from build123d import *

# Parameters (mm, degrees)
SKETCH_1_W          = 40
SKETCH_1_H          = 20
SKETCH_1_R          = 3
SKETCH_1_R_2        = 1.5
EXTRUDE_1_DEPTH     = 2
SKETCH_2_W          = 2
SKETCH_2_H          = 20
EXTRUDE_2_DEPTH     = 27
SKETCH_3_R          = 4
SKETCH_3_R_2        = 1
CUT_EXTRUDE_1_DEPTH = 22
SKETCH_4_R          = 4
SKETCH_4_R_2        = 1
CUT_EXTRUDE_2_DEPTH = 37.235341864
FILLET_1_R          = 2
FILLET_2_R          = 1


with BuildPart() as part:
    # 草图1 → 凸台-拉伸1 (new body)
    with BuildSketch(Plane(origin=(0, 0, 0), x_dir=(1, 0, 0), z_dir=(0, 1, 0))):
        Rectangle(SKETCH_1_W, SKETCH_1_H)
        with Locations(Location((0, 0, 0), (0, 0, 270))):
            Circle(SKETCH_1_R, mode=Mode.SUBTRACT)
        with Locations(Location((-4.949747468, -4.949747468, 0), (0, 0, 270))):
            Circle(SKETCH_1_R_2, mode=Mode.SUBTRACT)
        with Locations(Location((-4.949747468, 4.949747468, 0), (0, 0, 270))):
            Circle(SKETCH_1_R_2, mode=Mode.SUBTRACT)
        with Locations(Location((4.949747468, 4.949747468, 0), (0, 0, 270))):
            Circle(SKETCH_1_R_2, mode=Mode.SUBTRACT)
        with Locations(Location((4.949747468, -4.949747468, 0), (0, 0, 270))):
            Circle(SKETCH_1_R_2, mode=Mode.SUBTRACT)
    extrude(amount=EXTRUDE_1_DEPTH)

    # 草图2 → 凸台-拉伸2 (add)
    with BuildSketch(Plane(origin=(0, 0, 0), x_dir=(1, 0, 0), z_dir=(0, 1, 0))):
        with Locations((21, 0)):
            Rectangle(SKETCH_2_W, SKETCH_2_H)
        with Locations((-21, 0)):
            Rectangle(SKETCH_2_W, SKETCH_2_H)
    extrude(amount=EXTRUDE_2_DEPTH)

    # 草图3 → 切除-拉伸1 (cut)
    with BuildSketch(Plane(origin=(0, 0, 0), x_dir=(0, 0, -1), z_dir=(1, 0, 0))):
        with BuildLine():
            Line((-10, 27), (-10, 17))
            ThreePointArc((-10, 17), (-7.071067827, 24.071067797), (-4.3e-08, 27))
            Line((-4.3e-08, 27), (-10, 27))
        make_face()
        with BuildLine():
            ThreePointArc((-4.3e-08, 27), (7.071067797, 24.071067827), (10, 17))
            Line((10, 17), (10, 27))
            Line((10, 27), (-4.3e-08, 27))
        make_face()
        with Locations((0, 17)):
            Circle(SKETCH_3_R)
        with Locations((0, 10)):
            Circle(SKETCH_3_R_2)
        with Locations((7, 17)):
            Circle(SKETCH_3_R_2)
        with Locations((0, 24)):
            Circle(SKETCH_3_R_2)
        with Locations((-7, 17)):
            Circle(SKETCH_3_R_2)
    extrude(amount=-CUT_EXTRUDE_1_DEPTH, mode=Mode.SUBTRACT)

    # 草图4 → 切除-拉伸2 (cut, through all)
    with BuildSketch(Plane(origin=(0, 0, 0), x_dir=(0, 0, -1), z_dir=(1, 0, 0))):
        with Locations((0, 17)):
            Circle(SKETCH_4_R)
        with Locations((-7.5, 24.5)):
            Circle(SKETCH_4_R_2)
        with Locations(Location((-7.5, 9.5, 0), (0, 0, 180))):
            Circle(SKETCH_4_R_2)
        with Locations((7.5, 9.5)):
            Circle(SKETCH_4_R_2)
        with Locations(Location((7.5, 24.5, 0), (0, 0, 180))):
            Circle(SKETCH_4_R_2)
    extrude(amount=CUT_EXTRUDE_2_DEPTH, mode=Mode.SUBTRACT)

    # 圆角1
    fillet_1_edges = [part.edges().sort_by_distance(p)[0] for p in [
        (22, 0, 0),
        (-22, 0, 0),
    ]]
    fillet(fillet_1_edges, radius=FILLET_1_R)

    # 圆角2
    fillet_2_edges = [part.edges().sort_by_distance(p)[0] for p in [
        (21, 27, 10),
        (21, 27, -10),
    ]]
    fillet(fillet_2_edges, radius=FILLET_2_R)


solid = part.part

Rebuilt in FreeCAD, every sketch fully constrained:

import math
import FreeCAD as App
import Part
import Sketcher

V = App.Vector
Q = App.Units.Quantity


def edges_at(feature, points):
    """Names of the edges that pass closest to the given points."""
    edges = feature.Shape.Edges
    near = lambda p: min(range(len(edges)), key=lambda i: edges[i].distToShape(Part.Vertex(*p))[0])
    return sorted({f"Edge{near(p) + 1}" for p in points})

doc = App.newDocument("Part")
body = doc.addObject("PartDesign::Body", "Body")

sketch1 = body.newObject("Sketcher::SketchObject", "Sketch")
sketch1.AttachmentSupport = (doc.getObject("XZ_Plane"), [""])
sketch1.MapMode = "FlatFace"
sketch1.addGeometry([
    Part.LineSegment(V(-20, -10, 0), V(-20, 10, 0)),
    Part.LineSegment(V(-20, 10, 0), V(20, 10, 0)),
    Part.LineSegment(V(20, 10, 0), V(20, -10, 0)),
    Part.LineSegment(V(20, -10, 0), V(-20, -10, 0)),
    Part.Circle(V(-4.9, 4.9, 0), V(0, 0, 1), 1.5),
    Part.Circle(V(4.9, 4.9, 0), V(0, 0, 1), 1.5),
    Part.Circle(V(-4.9, -4.9, 0), V(0, 0, 1), 1.5),
    Part.Circle(V(0, 0, 0), V(0, 0, 1), 3),
    Part.Circle(V(4.9, -4.9, 0), V(0, 0, 1), 1.5),
], False)
sketch1.addConstraint([
    Sketcher.Constraint("Coincident", 0, 2, 1, 1),
    Sketcher.Constraint("Coincident", 1, 2, 2, 1),
    Sketcher.Constraint("Coincident", 2, 2, 3, 1),
    Sketcher.Constraint("Coincident", 3, 2, 0, 1),
    Sketcher.Constraint("Vertical", 0),
    Sketcher.Constraint("Horizontal", 1),
    Sketcher.Constraint("Vertical", 2),
    Sketcher.Constraint("Horizontal", 3),
    Sketcher.Constraint("Coincident", 7, 3, -1, 1),
    Sketcher.Constraint("Equal", 4, 5),
    Sketcher.Constraint("Equal", 5, 6),
    Sketcher.Constraint("Equal", 6, 8),
    Sketcher.Constraint("Symmetric", 5, 3, 6, 3, -1, 1),
    Sketcher.Constraint("Symmetric", 4, 3, 8, 3, -1, 1),
    Sketcher.Constraint("Symmetric", 0, 2, 2, 2, -1, 1),
    Sketcher.Constraint("Symmetric", 4, 3, 5, 3, -2),
    Sketcher.Constraint("Diameter", 4, Q("3 mm")),
    Sketcher.Constraint("Diameter", 7, Q("6 mm")),
    Sketcher.Constraint("DistanceX", 1, 1, 1, 2, Q("40 mm")),
    Sketcher.Constraint("DistanceY", 0, 1, 0, 2, Q("20 mm")),
    Sketcher.Constraint("DistanceX", 4, 3, -1, 1, Q("4.949747 mm")),
    Sketcher.Constraint("DistanceY", -1, 1, 4, 3, Q("4.949747 mm")),
])
pad1 = body.newObject("PartDesign::Pad", "Pad")
pad1.Profile = sketch1
pad1.Length = 2
pad1.Reversed = True

sketch2 = body.newObject("Sketcher::SketchObject", "Sketch001")
sketch2.AttachmentSupport = (doc.getObject("XZ_Plane"), [""])
sketch2.MapMode = "FlatFace"
sketch2.addGeometry([
    Part.LineSegment(V(20, -10, 0), V(20, 10, 0)),
    Part.LineSegment(V(20, 10, 0), V(22, 10, 0)),
    Part.LineSegment(V(22, 10, 0), V(22, -10, 0)),
    Part.LineSegment(V(22, -10, 0), V(20, -10, 0)),
    Part.LineSegment(V(-22, -10, 0), V(-22, 10, 0)),
    Part.LineSegment(V(-22, 10, 0), V(-20, 10, 0)),
    Part.LineSegment(V(-20, 10, 0), V(-20, -10, 0)),
    Part.LineSegment(V(-20, -10, 0), V(-22, -10, 0)),
], False)
sketch2.addConstraint([
    Sketcher.Constraint("Coincident", 0, 2, 1, 1),
    Sketcher.Constraint("Coincident", 1, 2, 2, 1),
    Sketcher.Constraint("Coincident", 2, 2, 3, 1),
    Sketcher.Constraint("Coincident", 3, 2, 0, 1),
    Sketcher.Constraint("Coincident", 4, 2, 5, 1),
    Sketcher.Constraint("Coincident", 5, 2, 6, 1),
    Sketcher.Constraint("Coincident", 6, 2, 7, 1),
    Sketcher.Constraint("Coincident", 7, 2, 4, 1),
    Sketcher.Constraint("Vertical", 0),
    Sketcher.Constraint("Horizontal", 1),
    Sketcher.Constraint("Vertical", 2),
    Sketcher.Constraint("Horizontal", 3),
    Sketcher.Constraint("Vertical", 4),
    Sketcher.Constraint("Horizontal", 5),
    Sketcher.Constraint("Vertical", 6),
    Sketcher.Constraint("Horizontal", 7),
    Sketcher.Constraint("Symmetric", 2, 2, 4, 2, -1, 1),
    Sketcher.Constraint("Symmetric", 0, 2, 6, 2, -1, 1),
    Sketcher.Constraint("Horizontal", 1, 2, 4, 2),
    Sketcher.Constraint("DistanceX", 1, 1, 1, 2, Q("2 mm")),
    Sketcher.Constraint("DistanceY", 0, 1, 0, 2, Q("20 mm")),
    Sketcher.Constraint("DistanceX", -1, 1, 0, 2, Q("20 mm")),
])
pad2 = body.newObject("PartDesign::Pad", "Pad001")
pad2.Profile = sketch2
pad2.Length = 27
pad2.Reversed = True

sketch3 = body.newObject("Sketcher::SketchObject", "Sketch002")
sketch3.AttachmentSupport = (doc.getObject("YZ_Plane"), [""])
sketch3.MapMode = "FlatFace"
sketch3.addGeometry([
    Part.LineSegment(V(27, 10, 0), V(17, 10, 0)),
    Part.ArcOfCircle(Part.Circle(V(17, 0, 0), V(0, 0, 1), 10), math.radians(0), math.radians(90)),
    Part.LineSegment(V(27, 0, 0), V(27, 10, 0)),
    Part.ArcOfCircle(Part.Circle(V(17, 0, 0), V(0, 0, 1), 10), math.radians(-90), math.radians(0)),
    Part.LineSegment(V(17, -10, 0), V(27, -10, 0)),
    Part.LineSegment(V(27, -10, 0), V(27, 0, 0)),
    Part.Circle(V(17, 0, 0), V(0, 0, 1), 4),
    Part.Circle(V(10, 0, 0), V(0, 0, 1), 1),
    Part.Circle(V(17, -7, 0), V(0, 0, 1), 1),
    Part.Circle(V(24, 0, 0), V(0, 0, 1), 1),
    Part.Circle(V(17, 7, 0), V(0, 0, 1), 1),
], False)
sketch3.addConstraint([
    Sketcher.Constraint("Tangent", 0, 2, 1, 2),
    Sketcher.Constraint("Tangent", 1, 1, 2, 1),
    Sketcher.Constraint("Coincident", 2, 2, 0, 1),
    Sketcher.Constraint("Tangent", 3, 1, 4, 1),
    Sketcher.Constraint("Coincident", 4, 2, 5, 1),
    Sketcher.Constraint("Tangent", 5, 2, 3, 2),
    Sketcher.Constraint("Horizontal", 0),
    Sketcher.Constraint("Vertical", 2),
    Sketcher.Constraint("Horizontal", 4),
    Sketcher.Constraint("Vertical", 5),
    Sketcher.Constraint("Coincident", 3, 3, 1, 3),
    Sketcher.Constraint("Coincident", 6, 3, 1, 3),
    Sketcher.Constraint("Equal", 1, 3),
    Sketcher.Constraint("Equal", 7, 8),
    Sketcher.Constraint("Equal", 8, 9),
    Sketcher.Constraint("Equal", 9, 10),
    Sketcher.Constraint("Symmetric", 8, 3, 10, 3, -1),
    Sketcher.Constraint("PointOnObject", 1, 3, -1),
    Sketcher.Constraint("PointOnObject", 7, 3, -1),
    Sketcher.Constraint("PointOnObject", 9, 3, -1),
    Sketcher.Constraint("Vertical", 6, 3, 8, 3),
    Sketcher.Constraint("Diameter", 6, Q("8 mm")),
    Sketcher.Constraint("Diameter", 7, Q("2 mm")),
    Sketcher.Constraint("Radius", 1, Q("10 mm")),
    Sketcher.Constraint("DistanceX", -1, 1, 1, 3, Q("17 mm")),
    Sketcher.Constraint("DistanceX", -1, 1, 7, 3, Q("10 mm")),
    Sketcher.Constraint("DistanceY", 8, 3, -1, 1, Q("7 mm")),
    Sketcher.Constraint("DistanceX", -1, 1, 9, 3, Q("24 mm")),
])
pocket1 = body.newObject("PartDesign::Pocket", "Pocket")
pocket1.Profile = sketch3
pocket1.Length = 22

sketch4 = body.newObject("Sketcher::SketchObject", "Sketch003")
sketch4.AttachmentSupport = (doc.getObject("YZ_Plane"), [""])
sketch4.MapMode = "FlatFace"
sketch4.addGeometry([
    Part.Circle(V(17, 0, 0), V(0, 0, 1), 4),
    Part.Circle(V(24.5, 7.5, 0), V(0, 0, 1), 1),
    Part.Circle(V(9.5, 7.5, 0), V(0, 0, 1), 1),
    Part.Circle(V(9.5, -7.5, 0), V(0, 0, 1), 1),
    Part.Circle(V(24.5, -7.5, 0), V(0, 0, 1), 1),
], False)
sketch4.addConstraint([
    Sketcher.Constraint("Equal", 1, 2),
    Sketcher.Constraint("Equal", 2, 3),
    Sketcher.Constraint("Equal", 3, 4),
    Sketcher.Constraint("Symmetric", 2, 3, 3, 3, -1),
    Sketcher.Constraint("Symmetric", 1, 3, 4, 3, -1),
    Sketcher.Constraint("PointOnObject", 0, 3, -1),
    Sketcher.Constraint("Horizontal", 1, 3, 2, 3),
    Sketcher.Constraint("Diameter", 0, Q("8 mm")),
    Sketcher.Constraint("Diameter", 1, Q("2 mm")),
    Sketcher.Constraint("DistanceX", -1, 1, 0, 3, Q("17 mm")),
    Sketcher.Constraint("DistanceX", 2, 3, 1, 3, Q("15 mm")),
    Sketcher.Constraint("DistanceY", 3, 3, 2, 3, Q("15 mm")),
    Sketcher.Constraint("DistanceX", -1, 1, 1, 3, Q("24.5 mm")),
])
pocket2 = body.newObject("PartDesign::Pocket", "Pocket001")
pocket2.Profile = sketch4
pocket2.Type = "ThroughAll"
pocket2.Reversed = True
doc.recompute()

fillet = body.newObject("PartDesign::Fillet", "Fillet")
fillet.Base = (pocket2, edges_at(pocket2, [(22, 0, 0), (-22, 0, 0)]))
fillet.Radius = 2
doc.recompute()

fillet2 = body.newObject("PartDesign::Fillet", "Fillet001")
fillet2.Base = (fillet, edges_at(fillet, [(21, 27, 10), (21, 27, -10)]))
fillet2.Radius = 1

doc.recompute()
